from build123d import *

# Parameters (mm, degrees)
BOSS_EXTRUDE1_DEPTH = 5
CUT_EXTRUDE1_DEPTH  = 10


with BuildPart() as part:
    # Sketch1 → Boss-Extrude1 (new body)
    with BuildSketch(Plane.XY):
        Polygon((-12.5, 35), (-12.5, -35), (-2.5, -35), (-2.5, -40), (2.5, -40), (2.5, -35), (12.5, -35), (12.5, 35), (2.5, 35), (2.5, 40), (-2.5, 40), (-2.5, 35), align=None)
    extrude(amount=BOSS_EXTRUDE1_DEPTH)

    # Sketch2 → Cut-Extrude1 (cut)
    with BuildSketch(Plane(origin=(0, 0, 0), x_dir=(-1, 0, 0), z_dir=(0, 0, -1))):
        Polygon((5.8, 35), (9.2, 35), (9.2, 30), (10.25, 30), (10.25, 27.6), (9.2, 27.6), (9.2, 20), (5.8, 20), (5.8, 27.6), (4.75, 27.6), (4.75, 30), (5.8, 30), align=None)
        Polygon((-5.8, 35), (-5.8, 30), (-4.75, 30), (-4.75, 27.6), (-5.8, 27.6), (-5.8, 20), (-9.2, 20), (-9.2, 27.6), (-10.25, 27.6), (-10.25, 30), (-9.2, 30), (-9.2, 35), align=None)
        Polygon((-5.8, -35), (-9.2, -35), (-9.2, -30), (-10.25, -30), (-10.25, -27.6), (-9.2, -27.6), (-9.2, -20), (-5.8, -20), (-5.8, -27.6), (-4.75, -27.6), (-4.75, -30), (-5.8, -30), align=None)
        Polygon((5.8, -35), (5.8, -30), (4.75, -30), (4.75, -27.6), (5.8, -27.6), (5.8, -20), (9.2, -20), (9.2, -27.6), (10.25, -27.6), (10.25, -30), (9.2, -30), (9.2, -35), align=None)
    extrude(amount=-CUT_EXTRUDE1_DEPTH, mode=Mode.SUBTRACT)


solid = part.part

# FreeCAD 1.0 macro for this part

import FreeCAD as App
import Part
import Sketcher

V = App.Vector
Q = App.Units.Quantity

doc = App.newDocument("Part")
params = doc.addObject("Spreadsheet::Sheet", "Params")
for row, (alias, value) in enumerate([
    ("sketch1_width", "10 mm"),
    ("sketch1_width2", "5 mm"),
    ("sketch1_height", "70 mm"),
    ("pad1_length", "5 mm"),
    ("sketch2_height", "5 mm"),
    ("sketch2_width", "3.4 mm"),
    ("sketch2_height2", "2.4 mm"),
    ("sketch2_height3", "7.6 mm"),
    ("sketch2_width2", "1.05 mm"),
    ("pocket1_length", "10 mm"),
], start=1):
    params.set(f"A{row}", alias)
    params.set(f"B{row}", "=" + value)
    params.setAlias(f"B{row}", alias)

body = doc.addObject("PartDesign::Body", "Body")

# Sketch on XY plane
sketch1 = doc.addObject("Sketcher::SketchObject", "Sketch")
body.addObject(sketch1)
sketch1.AttachmentSupport = (doc.XY_Plane, [""])
sketch1.MapMode = "FlatFace"
sketch1.addGeometry([
    Part.LineSegment(V(-12, 35, 0), V(-12, -35, 0)),  # 0
    Part.LineSegment(V(-12, -35, 0), V(-2, -35, 0)),  # 1
    Part.LineSegment(V(-2, -35, 0), V(-2, -40, 0)),  # 2
    Part.LineSegment(V(-2, -40, 0), V(2, -40, 0)),  # 3
    Part.LineSegment(V(2, -40, 0), V(2, -35, 0)),  # 4
    Part.LineSegment(V(2, -35, 0), V(12, -35, 0)),  # 5
    Part.LineSegment(V(12, -35, 0), V(12, 35, 0)),  # 6
    Part.LineSegment(V(12, 35, 0), V(2, 35, 0)),  # 7
    Part.LineSegment(V(2, 35, 0), V(2, 40, 0)),  # 8
    Part.LineSegment(V(2, 40, 0), V(-2, 40, 0)),  # 9
    Part.LineSegment(V(-2, 40, 0), V(-2, 35, 0)),  # 10
    Part.LineSegment(V(-2, 35, 0), V(-12, 35, 0)),  # 11
], False)
sketch1.addConstraint([
    Sketcher.Constraint("Coincident", 0, 2, 1, 1),
    Sketcher.Constraint("Coincident", 1, 2, 2, 1),
    Sketcher.Constraint("Coincident", 2, 2, 3, 1),
    Sketcher.Constraint("Coincident", 3, 2, 4, 1),
    Sketcher.Constraint("Coincident", 4, 2, 5, 1),
    Sketcher.Constraint("Coincident", 5, 2, 6, 1),
    Sketcher.Constraint("Coincident", 6, 2, 7, 1),
    Sketcher.Constraint("Coincident", 7, 2, 8, 1),
    Sketcher.Constraint("Coincident", 8, 2, 9, 1),
    Sketcher.Constraint("Coincident", 9, 2, 10, 1),
    Sketcher.Constraint("Coincident", 10, 2, 11, 1),
    Sketcher.Constraint("Coincident", 11, 2, 0, 1),
    Sketcher.Constraint("Vertical", 0),
    Sketcher.Constraint("Horizontal", 1),
    Sketcher.Constraint("Vertical", 2),
    Sketcher.Constraint("Horizontal", 3),
    Sketcher.Constraint("Vertical", 4),
    Sketcher.Constraint("Horizontal", 5),
    Sketcher.Constraint("Vertical", 6),
    Sketcher.Constraint("Horizontal", 7),
    Sketcher.Constraint("Vertical", 8),
    Sketcher.Constraint("Horizontal", 9),
    Sketcher.Constraint("Vertical", 10),
    Sketcher.Constraint("Horizontal", 11),
    Sketcher.Constraint("Symmetric", 0, 2, 6, 2, -1, 1),
    Sketcher.Constraint("Symmetric", 2, 2, 8, 2, -1, 1),
    Sketcher.Constraint("Symmetric", 4, 2, 10, 2, -1, 1),
    Sketcher.Constraint("Symmetric", 1, 2, 4, 2, -2),
    Sketcher.Constraint("Equal", 9, 2),
    Sketcher.Constraint("DistanceX", 1, 1, 1, 2, Q("10 mm")),
    Sketcher.Constraint("DistanceX", 3, 1, 3, 2, Q("5 mm")),
    Sketcher.Constraint("DistanceY", 0, 2, 0, 1, Q("70 mm")),
])
sketch1.setExpression("Constraints[29]", "Params.sketch1_width")
sketch1.setExpression("Constraints[30]", "Params.sketch1_width2")
sketch1.setExpression("Constraints[31]", "Params.sketch1_height")
pad1 = doc.addObject("PartDesign::Pad", "Pad")
body.addObject(pad1)
pad1.Profile = sketch1
pad1.setExpression("Length", "Params.pad1_length")

# Sketch on XY plane
sketch2 = doc.addObject("Sketcher::SketchObject", "Sketch001")
body.addObject(sketch2)
sketch2.AttachmentSupport = (doc.XY_Plane, [""])
sketch2.MapMode = "FlatFace"
sketch2.addGeometry([
    Part.LineSegment(V(-9.2, 35, 0), V(-5.8, 35, 0)),  # 0
    Part.LineSegment(V(-5.8, 35, 0), V(-5.8, 30, 0)),  # 1
    Part.LineSegment(V(-5.8, 30, 0), V(-4.8, 30, 0)),  # 2
    Part.LineSegment(V(-4.8, 30, 0), V(-4.8, 27.6, 0)),  # 3
    Part.LineSegment(V(-4.8, 27.6, 0), V(-5.8, 27.6, 0)),  # 4
    Part.LineSegment(V(-5.8, 27.6, 0), V(-5.8, 20, 0)),  # 5
    Part.LineSegment(V(-5.8, 20, 0), V(-9.2, 20, 0)),  # 6
    Part.LineSegment(V(-9.2, 20, 0), V(-9.2, 27.6, 0)),  # 7
    Part.LineSegment(V(-9.2, 27.6, 0), V(-10.2, 27.6, 0)),  # 8
    Part.LineSegment(V(-10.2, 27.6, 0), V(-10.2, 30, 0)),  # 9
    Part.LineSegment(V(-10.2, 30, 0), V(-9.2, 30, 0)),  # 10
    Part.LineSegment(V(-9.2, 30, 0), V(-9.2, 35, 0)),  # 11
    Part.LineSegment(V(5.8, 30, 0), V(5.8, 35, 0)),  # 12
    Part.LineSegment(V(5.8, 35, 0), V(9.2, 35, 0)),  # 13
    Part.LineSegment(V(9.2, 35, 0), V(9.2, 30, 0)),  # 14
    Part.LineSegment(V(9.2, 30, 0), V(10.2, 30, 0)),  # 15
    Part.LineSegment(V(10.2, 30, 0), V(10.2, 27.6, 0)),  # 16
    Part.LineSegment(V(10.2, 27.6, 0), V(9.2, 27.6, 0)),  # 17
    Part.LineSegment(V(9.2, 27.6, 0), V(9.2, 20, 0)),  # 18
    Part.LineSegment(V(9.2, 20, 0), V(5.8, 20, 0)),  # 19
    Part.LineSegment(V(5.8, 20, 0), V(5.8, 27.6, 0)),  # 20
    Part.LineSegment(V(5.8, 27.6, 0), V(4.8, 27.6, 0)),  # 21
    Part.LineSegment(V(4.8, 27.6, 0), V(4.8, 30, 0)),  # 22
    Part.LineSegment(V(4.8, 30, 0), V(5.8, 30, 0)),  # 23
    Part.LineSegment(V(9.2, -35, 0), V(5.8, -35, 0)),  # 24
    Part.LineSegment(V(5.8, -35, 0), V(5.8, -30, 0)),  # 25
    Part.LineSegment(V(5.8, -30, 0), V(4.8, -30, 0)),  # 26
    Part.LineSegment(V(4.8, -30, 0), V(4.8, -27.6, 0)),  # 27
    Part.LineSegment(V(4.8, -27.6, 0), V(5.8, -27.6, 0)),  # 28
    Part.LineSegment(V(5.8, -27.6, 0), V(5.8, -20, 0)),  # 29
    Part.LineSegment(V(5.8, -20, 0), V(9.2, -20, 0)),  # 30
    Part.LineSegment(V(9.2, -20, 0), V(9.2, -27.6, 0)),  # 31
    Part.LineSegment(V(9.2, -27.6, 0), V(10.2, -27.6, 0)),  # 32
    Part.LineSegment(V(10.2, -27.6, 0), V(10.2, -30, 0)),  # 33
    Part.LineSegment(V(10.2, -30, 0), V(9.2, -30, 0)),  # 34
    Part.LineSegment(V(9.2, -30, 0), V(9.2, -35, 0)),  # 35
    Part.LineSegment(V(-5.8, -30, 0), V(-5.8, -35, 0)),  # 36
    Part.LineSegment(V(-5.8, -35, 0), V(-9.2, -35, 0)),  # 37
    Part.LineSegment(V(-9.2, -35, 0), V(-9.2, -30, 0)),  # 38
    Part.LineSegment(V(-9.2, -30, 0), V(-10.2, -30, 0)),  # 39
    Part.LineSegment(V(-10.2, -30, 0), V(-10.2, -27.6, 0)),  # 40
    Part.LineSegment(V(-10.2, -27.6, 0), V(-9.2, -27.6, 0)),  # 41
    Part.LineSegment(V(-9.2, -27.6, 0), V(-9.2, -20, 0)),  # 42
    Part.LineSegment(V(-9.2, -20, 0), V(-5.8, -20, 0)),  # 43
    Part.LineSegment(V(-5.8, -20, 0), V(-5.8, -27.6, 0)),  # 44
    Part.LineSegment(V(-5.8, -27.6, 0), V(-4.8, -27.6, 0)),  # 45
    Part.LineSegment(V(-4.8, -27.6, 0), V(-4.8, -30, 0)),  # 46
    Part.LineSegment(V(-4.8, -30, 0), V(-5.8, -30, 0)),  # 47
], False)
sketch2.addConstraint([
    Sketcher.Constraint("Coincident", 0, 2, 1, 1),
    Sketcher.Constraint("Coincident", 1, 2, 2, 1),
    Sketcher.Constraint("Coincident", 2, 2, 3, 1),
    Sketcher.Constraint("Coincident", 3, 2, 4, 1),
    Sketcher.Constraint("Coincident", 4, 2, 5, 1),
    Sketcher.Constraint("Coincident", 5, 2, 6, 1),
    Sketcher.Constraint("Coincident", 6, 2, 7, 1),
    Sketcher.Constraint("Coincident", 7, 2, 8, 1),
    Sketcher.Constraint("Coincident", 8, 2, 9, 1),
    Sketcher.Constraint("Coincident", 9, 2, 10, 1),
    Sketcher.Constraint("Coincident", 10, 2, 11, 1),
    Sketcher.Constraint("Coincident", 11, 2, 0, 1),
    Sketcher.Constraint("Coincident", 12, 2, 13, 1),
    Sketcher.Constraint("Coincident", 13, 2, 14, 1),
    Sketcher.Constraint("Coincident", 14, 2, 15, 1),
    Sketcher.Constraint("Coincident", 15, 2, 16, 1),
    Sketcher.Constraint("Coincident", 16, 2, 17, 1),
    Sketcher.Constraint("Coincident", 17, 2, 18, 1),
    Sketcher.Constraint("Coincident", 18, 2, 19, 1),
    Sketcher.Constraint("Coincident", 19, 2, 20, 1),
    Sketcher.Constraint("Coincident", 20, 2, 21, 1),
    Sketcher.Constraint("Coincident", 21, 2, 22, 1),
    Sketcher.Constraint("Coincident", 22, 2, 23, 1),
    Sketcher.Constraint("Coincident", 23, 2, 12, 1),
    Sketcher.Constraint("Coincident", 24, 2, 25, 1),
    Sketcher.Constraint("Coincident", 25, 2, 26, 1),
    Sketcher.Constraint("Coincident", 26, 2, 27, 1),
    Sketcher.Constraint("Coincident", 27, 2, 28, 1),
    Sketcher.Constraint("Coincident", 28, 2, 29, 1),
    Sketcher.Constraint("Coincident", 29, 2, 30, 1),
    Sketcher.Constraint("Coincident", 30, 2, 31, 1),
    Sketcher.Constraint("Coincident", 31, 2, 32, 1),
    Sketcher.Constraint("Coincident", 32, 2, 33, 1),
    Sketcher.Constraint("Coincident", 33, 2, 34, 1),
    Sketcher.Constraint("Coincident", 34, 2, 35, 1),
    Sketcher.Constraint("Coincident", 35, 2, 24, 1),
    Sketcher.Constraint("Coincident", 36, 2, 37, 1),
    Sketcher.Constraint("Coincident", 37, 2, 38, 1),
    Sketcher.Constraint("Coincident", 38, 2, 39, 1),
    Sketcher.Constraint("Coincident", 39, 2, 40, 1),
    Sketcher.Constraint("Coincident", 40, 2, 41, 1),
    Sketcher.Constraint("Coincident", 41, 2, 42, 1),
    Sketcher.Constraint("Coincident", 42, 2, 43, 1),
    Sketcher.Constraint("Coincident", 43, 2, 44, 1),
    Sketcher.Constraint("Coincident", 44, 2, 45, 1),
    Sketcher.Constraint("Coincident", 45, 2, 46, 1),
    Sketcher.Constraint("Coincident", 46, 2, 47, 1),
    Sketcher.Constraint("Coincident", 47, 2, 36, 1),
    Sketcher.Constraint("Horizontal", 0),
    Sketcher.Constraint("Vertical", 1),
    Sketcher.Constraint("Horizontal", 2),
    Sketcher.Constraint("Vertical", 3),
    Sketcher.Constraint("Horizontal", 4),
    Sketcher.Constraint("Vertical", 5),
    Sketcher.Constraint("Horizontal", 6),
    Sketcher.Constraint("Vertical", 7),
    Sketcher.Constraint("Horizontal", 8),
    Sketcher.Constraint("Vertical", 9),
    Sketcher.Constraint("Horizontal", 10),
    Sketcher.Constraint("Vertical", 11),
    Sketcher.Constraint("Vertical", 12),
    Sketcher.Constraint("Horizontal", 13),
    Sketcher.Constraint("Vertical", 14),
    Sketcher.Constraint("Horizontal", 15),
    Sketcher.Constraint("Vertical", 16),
    Sketcher.Constraint("Horizontal", 17),
    Sketcher.Constraint("Vertical", 18),
    Sketcher.Constraint("Horizontal", 19),
    Sketcher.Constraint("Vertical", 20),
    Sketcher.Constraint("Horizontal", 21),
    Sketcher.Constraint("Vertical", 22),
    Sketcher.Constraint("Horizontal", 23),
    Sketcher.Constraint("Horizontal", 24),
    Sketcher.Constraint("Vertical", 25),
    Sketcher.Constraint("Horizontal", 26),
    Sketcher.Constraint("Vertical", 27),
    Sketcher.Constraint("Horizontal", 28),
    Sketcher.Constraint("Vertical", 29),
    Sketcher.Constraint("Horizontal", 30),
    Sketcher.Constraint("Vertical", 31),
    Sketcher.Constraint("Horizontal", 32),
    Sketcher.Constraint("Vertical", 33),
    Sketcher.Constraint("Horizontal", 34),
    Sketcher.Constraint("Vertical", 35),
    Sketcher.Constraint("Vertical", 36),
    Sketcher.Constraint("Horizontal", 37),
    Sketcher.Constraint("Vertical", 38),
    Sketcher.Constraint("Horizontal", 39),
    Sketcher.Constraint("Vertical", 40),
    Sketcher.Constraint("Horizontal", 41),
    Sketcher.Constraint("Vertical", 42),
    Sketcher.Constraint("Horizontal", 43),
    Sketcher.Constraint("Vertical", 44),
    Sketcher.Constraint("Horizontal", 45),
    Sketcher.Constraint("Vertical", 46),
    Sketcher.Constraint("Horizontal", 47),
    Sketcher.Constraint("Symmetric", 0, 2, 24, 2, -1, 1),
    Sketcher.Constraint("Symmetric", 2, 2, 26, 2, -1, 1),
    Sketcher.Constraint("Symmetric", 4, 2, 28, 2, -1, 1),
    Sketcher.Constraint("Symmetric", 6, 2, 30, 2, -1, 1),
    Sketcher.Constraint("Symmetric", 8, 2, 32, 2, -1, 1),
    Sketcher.Constraint("Symmetric", 10, 2, 34, 2, -1, 1),
    Sketcher.Constraint("Symmetric", 12, 2, 36, 2, -1, 1),
    Sketcher.Constraint("Symmetric", 14, 2, 38, 2, -1, 1),
    Sketcher.Constraint("Symmetric", 16, 2, 40, 2, -1, 1),
    Sketcher.Constraint("Symmetric", 18, 2, 42, 2, -1, 1),
    Sketcher.Constraint("Symmetric", 20, 2, 44, 2, -1, 1),
    Sketcher.Constraint("Symmetric", 22, 2, 46, 2, -1, 1),
    Sketcher.Constraint("Symmetric", 0, 2, 12, 2, -2),
    Sketcher.Constraint("Symmetric", 10, 2, 14, 2, -2),
    Sketcher.Constraint("Symmetric", 8, 2, 16, 2, -2),
    Sketcher.Constraint("Symmetric", 6, 2, 18, 2, -2),
    Sketcher.Constraint("Symmetric", 4, 2, 20, 2, -2),
    Sketcher.Constraint("Symmetric", 2, 2, 22, 2, -2),
    Sketcher.Constraint("Horizontal", 4, 2, 7, 2),
    Sketcher.Constraint("Horizontal", 2, 2, 9, 2),
    Sketcher.Constraint("Vertical", 1, 2, 4, 2),
    Sketcher.Constraint("Vertical", 7, 2, 10, 2),
    Sketcher.Constraint("Equal", 4, 8),
    Sketcher.Constraint("DistanceY", 1, 2, 1, 1, Q("5 mm")),
    Sketcher.Constraint("DistanceX", 0, 1, 0, 2, Q("3.4 mm")),
    Sketcher.Constraint("DistanceY", 3, 2, 3, 1, Q("2.4 mm")),
    Sketcher.Constraint("DistanceY", 5, 2, 5, 1, Q("7.6 mm")),
    Sketcher.Constraint("DistanceY", -1, 1, 0, 2, Q("35 mm")),
    Sketcher.Constraint("DistanceX", 0, 2, 13, 2, Q("15 mm")),
    Sketcher.Constraint("DistanceX", 2, 1, 2, 2, Q("1.05 mm")),
])
sketch2.setExpression("Constraints[119]", "Params.sketch2_height")
sketch2.setExpression("Constraints[120]", "Params.sketch2_width")
sketch2.setExpression("Constraints[121]", "Params.sketch2_height2")
sketch2.setExpression("Constraints[122]", "Params.sketch2_height3")
sketch2.setExpression("Constraints[125]", "Params.sketch2_width2")
pocket1 = doc.addObject("PartDesign::Pocket", "Pocket")
body.addObject(pocket1)
pocket1.Profile = sketch2
pocket1.setExpression("Length", "Params.pocket1_length")
pocket1.Reversed = True

doc.recompute()
